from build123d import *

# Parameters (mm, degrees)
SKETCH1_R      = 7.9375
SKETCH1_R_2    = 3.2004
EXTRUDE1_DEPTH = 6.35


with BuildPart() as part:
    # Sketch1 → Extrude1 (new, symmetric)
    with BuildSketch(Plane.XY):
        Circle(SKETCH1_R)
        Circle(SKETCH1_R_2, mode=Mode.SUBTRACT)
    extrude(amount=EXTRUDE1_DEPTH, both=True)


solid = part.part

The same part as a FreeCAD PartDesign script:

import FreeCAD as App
import Part
import Sketcher
from FreeCAD import Vector
Q = App.Units.Quantity

doc = App.newDocument("Part")
body = doc.addObject("PartDesign::Body", "Body")

sketch1 = doc.addObject("Sketcher::SketchObject", "Sketch")
body.addObject(sketch1)
sketch1.AttachmentSupport = (doc.XY_Plane, [""])
sketch1.MapMode = "FlatFace"
sketch1.addGeometry([
    Part.Circle(Vector(0, 0, 0), Vector(0, 0, 1), 7.9375),
    Part.Circle(Vector(0, 0, 0), Vector(0, 0, 1), 3.2004),
], False)
sketch1.addConstraint([
    Sketcher.Constraint("Coincident", 0, 3, -1, 1),
    Sketcher.Constraint("Coincident", 1, 3, -1, 1),
    Sketcher.Constraint("Diameter", 0, Q("0.625 in")),
    Sketcher.Constraint("Diameter", 1, Q("0.252 in")),
])
pad1 = doc.addObject("PartDesign::Pad", "Pad")
body.addObject(pad1)
pad1.Profile = sketch1
pad1.Length = Q("0.5 in")
pad1.Midplane = True

doc.recompute()
